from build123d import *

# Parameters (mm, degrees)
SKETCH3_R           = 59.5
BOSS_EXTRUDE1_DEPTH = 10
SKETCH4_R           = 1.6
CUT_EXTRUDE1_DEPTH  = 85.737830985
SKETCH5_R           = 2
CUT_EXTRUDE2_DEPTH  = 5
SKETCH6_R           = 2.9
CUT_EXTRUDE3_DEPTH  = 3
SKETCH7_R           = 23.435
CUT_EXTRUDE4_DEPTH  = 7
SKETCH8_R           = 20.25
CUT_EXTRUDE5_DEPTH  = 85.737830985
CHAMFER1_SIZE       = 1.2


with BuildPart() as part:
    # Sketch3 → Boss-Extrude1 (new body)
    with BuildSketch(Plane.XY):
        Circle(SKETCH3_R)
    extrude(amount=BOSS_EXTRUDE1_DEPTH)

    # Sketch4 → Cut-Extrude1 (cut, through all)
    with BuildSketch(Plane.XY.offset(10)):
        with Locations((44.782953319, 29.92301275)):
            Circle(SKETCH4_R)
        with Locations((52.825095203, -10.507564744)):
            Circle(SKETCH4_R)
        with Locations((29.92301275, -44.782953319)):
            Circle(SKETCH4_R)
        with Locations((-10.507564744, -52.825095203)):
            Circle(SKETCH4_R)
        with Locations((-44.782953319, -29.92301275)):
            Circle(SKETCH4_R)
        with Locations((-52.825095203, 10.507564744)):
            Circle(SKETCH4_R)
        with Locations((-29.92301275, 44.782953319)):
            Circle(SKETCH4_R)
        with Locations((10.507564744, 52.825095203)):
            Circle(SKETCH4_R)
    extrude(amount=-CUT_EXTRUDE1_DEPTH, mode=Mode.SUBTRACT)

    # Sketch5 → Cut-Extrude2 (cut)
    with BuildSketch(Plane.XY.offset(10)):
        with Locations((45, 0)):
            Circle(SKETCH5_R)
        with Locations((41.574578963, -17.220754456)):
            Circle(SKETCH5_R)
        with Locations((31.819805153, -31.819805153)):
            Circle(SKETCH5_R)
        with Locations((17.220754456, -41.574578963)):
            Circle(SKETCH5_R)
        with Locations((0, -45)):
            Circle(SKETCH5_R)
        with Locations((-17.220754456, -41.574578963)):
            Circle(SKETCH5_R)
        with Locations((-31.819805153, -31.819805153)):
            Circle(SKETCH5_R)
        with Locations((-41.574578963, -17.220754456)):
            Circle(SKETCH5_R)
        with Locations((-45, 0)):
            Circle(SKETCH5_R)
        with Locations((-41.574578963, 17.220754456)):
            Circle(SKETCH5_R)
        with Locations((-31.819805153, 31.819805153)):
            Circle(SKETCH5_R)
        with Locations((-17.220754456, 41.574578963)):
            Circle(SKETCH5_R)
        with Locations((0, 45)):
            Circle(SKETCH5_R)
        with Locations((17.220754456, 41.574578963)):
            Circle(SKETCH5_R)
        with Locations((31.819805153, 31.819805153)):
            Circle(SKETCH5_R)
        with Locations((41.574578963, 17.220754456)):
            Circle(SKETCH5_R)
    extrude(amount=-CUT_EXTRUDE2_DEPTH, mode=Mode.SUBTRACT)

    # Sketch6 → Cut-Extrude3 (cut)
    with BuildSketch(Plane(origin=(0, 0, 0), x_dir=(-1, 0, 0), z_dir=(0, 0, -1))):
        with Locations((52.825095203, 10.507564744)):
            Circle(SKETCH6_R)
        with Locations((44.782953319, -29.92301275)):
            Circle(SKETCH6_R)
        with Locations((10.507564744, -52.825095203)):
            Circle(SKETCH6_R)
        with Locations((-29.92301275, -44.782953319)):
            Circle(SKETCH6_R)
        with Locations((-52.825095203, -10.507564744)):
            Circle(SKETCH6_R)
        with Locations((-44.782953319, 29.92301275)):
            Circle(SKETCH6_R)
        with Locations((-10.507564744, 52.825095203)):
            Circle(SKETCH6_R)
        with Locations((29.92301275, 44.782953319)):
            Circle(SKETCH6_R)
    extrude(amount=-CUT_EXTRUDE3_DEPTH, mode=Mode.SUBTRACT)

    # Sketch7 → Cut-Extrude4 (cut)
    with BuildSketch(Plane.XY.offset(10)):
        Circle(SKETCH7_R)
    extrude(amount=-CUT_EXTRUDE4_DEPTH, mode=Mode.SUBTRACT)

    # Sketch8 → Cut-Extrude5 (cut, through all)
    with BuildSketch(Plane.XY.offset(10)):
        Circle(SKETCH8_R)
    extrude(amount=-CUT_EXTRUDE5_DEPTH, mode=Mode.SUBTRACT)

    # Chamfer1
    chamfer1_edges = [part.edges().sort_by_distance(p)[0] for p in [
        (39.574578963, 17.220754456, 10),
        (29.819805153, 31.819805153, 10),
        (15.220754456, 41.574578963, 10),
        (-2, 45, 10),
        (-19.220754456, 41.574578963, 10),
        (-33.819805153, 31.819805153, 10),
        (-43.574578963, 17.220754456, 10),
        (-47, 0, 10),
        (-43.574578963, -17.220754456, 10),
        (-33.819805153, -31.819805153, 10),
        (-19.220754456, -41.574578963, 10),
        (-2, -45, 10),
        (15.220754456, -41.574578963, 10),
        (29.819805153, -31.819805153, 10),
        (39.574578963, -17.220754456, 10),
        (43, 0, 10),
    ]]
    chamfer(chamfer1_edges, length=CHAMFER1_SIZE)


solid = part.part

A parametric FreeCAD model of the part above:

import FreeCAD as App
import Part
import Sketcher

V = App.Vector


def edges_at(feature, points):
    """Names of the edges that pass closest to the given points."""
    edges = feature.Shape.Edges
    near = lambda p: min(range(len(edges)), key=lambda i: edges[i].distToShape(Part.Vertex(*p))[0])
    return sorted({f"Edge{near(p) + 1}" for p in points})

doc = App.newDocument("Part")
params = doc.addObject("Spreadsheet::Sheet", "Params")
for row, (alias, value) in enumerate([
    ("sketch1_diameter", "119 mm"),
    ("pad1_length", "10 mm"),
    ("sketch2_diameter", "3.2 mm"),
    ("sketch3_diameter", "4 mm"),
    ("pocket2_length", "5 mm"),
    ("sketch4_diameter", "5.8 mm"),
    ("pocket3_length", "3 mm"),
    ("sketch5_diameter", "46.87 mm"),
    ("pocket4_length", "7 mm"),
    ("sketch6_diameter", "40.5 mm"),
    ("chamfer_size", "1.2 mm"),
], start=1):
    params.set(f"A{row}", alias)
    params.set(f"B{row}", "=" + value)
    params.setAlias(f"B{row}", alias)

body = doc.addObject("PartDesign::Body", "Body")

sketch1 = body.newObject("Sketcher::SketchObject", "Sketch")
sketch1.AttachmentSupport = (doc.getObject("XY_Plane"), [""])
sketch1.MapMode = "FlatFace"
sketch1.addGeometry(Part.Circle(V(0, 0, 0), V(0, 0, 1), 60), False)
sketch1.addConstraint(Sketcher.Constraint("Coincident", 0, 3, -1, 1))
sketch1.addConstraint(Sketcher.Constraint("Diameter", 0, 119.0))
sketch1.setExpression("Constraints[1]", "Params.sketch1_diameter")
pad1 = body.newObject("PartDesign::Pad", "Pad")
pad1.Profile = sketch1
pad1.setExpression("Length", "Params.pad1_length")

sketch2 = body.newObject("Sketcher::SketchObject", "Sketch001")
sketch2.AttachmentSupport = (doc.getObject("XY_Plane"), [""])
sketch2.MapMode = "FlatFace"
sketch2.AttachmentOffset = App.Placement(V(0, 0, 10), App.Rotation())
sketch2.addGeometry(Part.Circle(V(44.8, 29.9, 0), V(0, 0, 1), 1.6), False)
sketch2.addGeometry(Part.Circle(V(52.8, -10.5, 0), V(0, 0, 1), 1.6), False)
sketch2.addGeometry(Part.Circle(V(29.9, -44.8, 0), V(0, 0, 1), 1.6), False)
sketch2.addGeometry(Part.Circle(V(-10.5, -52.8, 0), V(0, 0, 1), 1.6), False)
sketch2.addGeometry(Part.Circle(V(-44.8, -29.9, 0), V(0, 0, 1), 1.6), False)
sketch2.addGeometry(Part.Circle(V(-52.8, 10.5, 0), V(0, 0, 1), 1.6), False)
sketch2.addGeometry(Part.Circle(V(-29.9, 44.8, 0), V(0, 0, 1), 1.6), False)
sketch2.addGeometry(Part.Circle(V(10.5, 52.8, 0), V(0, 0, 1), 1.6), False)
sketch2.addConstraint(Sketcher.Constraint("Equal", 0, 1))
sketch2.addConstraint(Sketcher.Constraint("Equal", 1, 2))
sketch2.addConstraint(Sketcher.Constraint("Equal", 2, 3))
sketch2.addConstraint(Sketcher.Constraint("Equal", 3, 4))
sketch2.addConstraint(Sketcher.Constraint("Equal", 4, 5))
sketch2.addConstraint(Sketcher.Constraint("Equal", 5, 6))
sketch2.addConstraint(Sketcher.Constraint("Equal", 6, 7))
sketch2.addConstraint(Sketcher.Constraint("Symmetric", 0, 3, 4, 3, -1, 1))
sketch2.addConstraint(Sketcher.Constraint("Symmetric", 1, 3, 5, 3, -1, 1))
sketch2.addConstraint(Sketcher.Constraint("Symmetric", 2, 3, 6, 3, -1, 1))
sketch2.addConstraint(Sketcher.Constraint("Symmetric", 3, 3, 7, 3, -1, 1))
sketch2.addConstraint(Sketcher.Constraint("Diameter", 0, 3.2))
sketch2.addConstraint(Sketcher.Constraint("DistanceX", 0, 3, 1, 3, 8.042142))
sketch2.addConstraint(Sketcher.Constraint("DistanceY", 2, 3, 1, 3, 34.275389))
sketch2.addConstraint(Sketcher.Constraint("DistanceX", 2, 3, 0, 3, 14.859941))
sketch2.addConstraint(Sketcher.Constraint("DistanceY", 3, 3, 2, 3, 8.042142))
sketch2.addConstraint(Sketcher.Constraint("DistanceX", 3, 3, 1, 3, 63.33266))
sketch2.addConstraint(Sketcher.Constraint("DistanceX", 4, 3, 3, 3, 34.275389))
sketch2.addConstraint(Sketcher.Constraint("DistanceY", 2, 3, 4, 3, 14.859941))
sketch2.addConstraint(Sketcher.Constraint("DistanceY", 3, 3, 5, 3, 63.33266))
sketch2.setExpression("Constraints[11]", "Params.sketch2_diameter")
pocket1 = body.newObject("PartDesign::Pocket", "Pocket")
pocket1.Profile = sketch2
pocket1.Type = "ThroughAll"

sketch3 = body.newObject("Sketcher::SketchObject", "Sketch002")
sketch3.AttachmentSupport = (doc.getObject("XY_Plane"), [""])
sketch3.MapMode = "FlatFace"
sketch3.AttachmentOffset = App.Placement(V(0, 0, 10), App.Rotation())
sketch3.addGeometry(Part.Circle(V(45, 0, 0), V(0, 0, 1), 2), False)
sketch3.addGeometry(Part.Circle(V(41.6, -17.2, 0), V(0, 0, 1), 2), False)
sketch3.addGeometry(Part.Circle(V(31.8, -31.8, 0), V(0, 0, 1), 2), False)
sketch3.addGeometry(Part.Circle(V(17.2, -41.6, 0), V(0, 0, 1), 2), False)
sketch3.addGeometry(Part.Circle(V(0, -45, 0), V(0, 0, 1), 2), False)
sketch3.addGeometry(Part.Circle(V(-17.2, -41.6, 0), V(0, 0, 1), 2), False)
sketch3.addGeometry(Part.Circle(V(-31.8, -31.8, 0), V(0, 0, 1), 2), False)
sketch3.addGeometry(Part.Circle(V(-41.6, -17.2, 0), V(0, 0, 1), 2), False)
sketch3.addGeometry(Part.Circle(V(-45, 0, 0), V(0, 0, 1), 2), False)
sketch3.addGeometry(Part.Circle(V(-41.6, 17.2, 0), V(0, 0, 1), 2), False)
sketch3.addGeometry(Part.Circle(V(-31.8, 31.8, 0), V(0, 0, 1), 2), False)
sketch3.addGeometry(Part.Circle(V(-17.2, 41.6, 0), V(0, 0, 1), 2), False)
sketch3.addGeometry(Part.Circle(V(0, 45, 0), V(0, 0, 1), 2), False)
sketch3.addGeometry(Part.Circle(V(17.2, 41.6, 0), V(0, 0, 1), 2), False)
sketch3.addGeometry(Part.Circle(V(31.8, 31.8, 0), V(0, 0, 1), 2), False)
sketch3.addGeometry(Part.Circle(V(41.6, 17.2, 0), V(0, 0, 1), 2), False)
sketch3.addConstraint(Sketcher.Constraint("Equal", 0, 1))
sketch3.addConstraint(Sketcher.Constraint("Equal", 1, 2))
sketch3.addConstraint(Sketcher.Constraint("Equal", 2, 3))
sketch3.addConstraint(Sketcher.Constraint("Equal", 3, 4))
sketch3.addConstraint(Sketcher.Constraint("Equal", 4, 5))
sketch3.addConstraint(Sketcher.Constraint("Equal", 5, 6))
sketch3.addConstraint(Sketcher.Constraint("Equal", 6, 7))
sketch3.addConstraint(Sketcher.Constraint("Equal", 7, 8))
sketch3.addConstraint(Sketcher.Constraint("Equal", 8, 9))
sketch3.addConstraint(Sketcher.Constraint("Equal", 9, 10))
sketch3.addConstraint(Sketcher.Constraint("Equal", 10, 11))
sketch3.addConstraint(Sketcher.Constraint("Equal", 11, 12))
sketch3.addConstraint(Sketcher.Constraint("Equal", 12, 13))
sketch3.addConstraint(Sketcher.Constraint("Equal", 13, 14))
sketch3.addConstraint(Sketcher.Constraint("Equal", 14, 15))
sketch3.addConstraint(Sketcher.Constraint("Symmetric", 0, 3, 8, 3, -1, 1))
sketch3.addConstraint(Sketcher.Constraint("Symmetric", 1, 3, 9, 3, -1, 1))
sketch3.addConstraint(Sketcher.Constraint("Symmetric", 2, 3, 10, 3, -1, 1))
sketch3.addConstraint(Sketcher.Constraint("Symmetric", 3, 3, 11, 3, -1, 1))
sketch3.addConstraint(Sketcher.Constraint("Symmetric", 4, 3, 12, 3, -1, 1))
sketch3.addConstraint(Sketcher.Constraint("Symmetric", 5, 3, 13, 3, -1, 1))
sketch3.addConstraint(Sketcher.Constraint("Symmetric", 6, 3, 14, 3, -1, 1))
sketch3.addConstraint(Sketcher.Constraint("Symmetric", 7, 3, 15, 3, -1, 1))
sketch3.addConstraint(Sketcher.Constraint("Symmetric", 3, 3, 5, 3, -2))
sketch3.addConstraint(Sketcher.Constraint("Symmetric", 2, 3, 6, 3, -2))
sketch3.addConstraint(Sketcher.Constraint("Symmetric", 1, 3, 7, 3, -2))
sketch3.addConstraint(Sketcher.Constraint("PointOnObject", 0, 3, -1))
sketch3.addConstraint(Sketcher.Constraint("PointOnObject", 4, 3, -2))
sketch3.addConstraint(Sketcher.Constraint("Diameter", 0, 4.0))
sketch3.addConstraint(Sketcher.Constraint("DistanceX", -1, 1, 0, 3, 45.0))
sketch3.addConstraint(Sketcher.Constraint("DistanceY", 4, 3, -1, 1, 45.0))
sketch3.addConstraint(Sketcher.Constraint("DistanceX", -1, 1, 1, 3, 41.574579))
sketch3.addConstraint(Sketcher.Constraint("DistanceY", 3, 3, -1, 1, 41.574579))
sketch3.addConstraint(Sketcher.Constraint("DistanceY", 2, 3, 1, 3, 14.599051))
sketch3.addConstraint(Sketcher.Constraint("DistanceX", 3, 3, 2, 3, 14.599051))
sketch3.addConstraint(Sketcher.Constraint("DistanceX", 5, 3, 3, 3, 34.441509))
sketch3.addConstraint(Sketcher.Constraint("DistanceY", 7, 3, 9, 3, 34.441509))
sketch3.setExpression("Constraints[28]", "Params.sketch3_diameter")
pocket2 = body.newObject("PartDesign::Pocket", "Pocket001")
pocket2.Profile = sketch3
pocket2.setExpression("Length", "Params.pocket2_length")

sketch4 = body.newObject("Sketcher::SketchObject", "Sketch003")
sketch4.AttachmentSupport = (doc.getObject("XY_Plane"), [""])
sketch4.MapMode = "FlatFace"
sketch4.addGeometry(Part.Circle(V(-52.8, 10.5, 0), V(0, 0, 1), 2.9), False)
sketch4.addGeometry(Part.Circle(V(-44.8, -29.9, 0), V(0, 0, 1), 2.9), False)
sketch4.addGeometry(Part.Circle(V(-10.5, -52.8, 0), V(0, 0, 1), 2.9), False)
sketch4.addGeometry(Part.Circle(V(29.9, -44.8, 0), V(0, 0, 1), 2.9), False)
sketch4.addGeometry(Part.Circle(V(52.8, -10.5, 0), V(0, 0, 1), 2.9), False)
sketch4.addGeometry(Part.Circle(V(44.8, 29.9, 0), V(0, 0, 1), 2.9), False)
sketch4.addGeometry(Part.Circle(V(10.5, 52.8, 0), V(0, 0, 1), 2.9), False)
sketch4.addGeometry(Part.Circle(V(-29.9, 44.8, 0), V(0, 0, 1), 2.9), False)
sketch4.addConstraint(Sketcher.Constraint("Equal", 0, 1))
sketch4.addConstraint(Sketcher.Constraint("Equal", 1, 2))
sketch4.addConstraint(Sketcher.Constraint("Equal", 2, 3))
sketch4.addConstraint(Sketcher.Constraint("Equal", 3, 4))
sketch4.addConstraint(Sketcher.Constraint("Equal", 4, 5))
sketch4.addConstraint(Sketcher.Constraint("Equal", 5, 6))
sketch4.addConstraint(Sketcher.Constraint("Equal", 6, 7))
sketch4.addConstraint(Sketcher.Constraint("Symmetric", 0, 3, 4, 3, -1, 1))
sketch4.addConstraint(Sketcher.Constraint("Symmetric", 1, 3, 5, 3, -1, 1))
sketch4.addConstraint(Sketcher.Constraint("Symmetric", 2, 3, 6, 3, -1, 1))
sketch4.addConstraint(Sketcher.Constraint("Symmetric", 3, 3, 7, 3, -1, 1))
sketch4.addConstraint(Sketcher.Constraint("Diameter", 0, 5.8))
sketch4.addConstraint(Sketcher.Constraint("DistanceX", 0, 3, 1, 3, 8.042142))
sketch4.addConstraint(Sketcher.Constraint("DistanceX", 1, 3, 2, 3, 34.275389))
sketch4.addConstraint(Sketcher.Constraint("DistanceY", 2, 3, 0, 3, 63.33266))
sketch4.addConstraint(Sketcher.Constraint("DistanceY", 2, 3, 3, 3, 8.042142))
sketch4.addConstraint(Sketcher.Constraint("DistanceY", 3, 3, 1, 3, 14.859941))
sketch4.addConstraint(Sketcher.Constraint("DistanceY", 3, 3, 4, 3, 34.275389))
sketch4.addConstraint(Sketcher.Constraint("DistanceX", 2, 3, 4, 3, 63.33266))
sketch4.addConstraint(Sketcher.Constraint("DistanceX", 3, 3, 5, 3, 14.859941))
sketch4.setExpression("Constraints[11]", "Params.sketch4_diameter")
pocket3 = body.newObject("PartDesign::Pocket", "Pocket002")
pocket3.Profile = sketch4
pocket3.setExpression("Length", "Params.pocket3_length")
pocket3.Reversed = True

sketch5 = body.newObject("Sketcher::SketchObject", "Sketch004")
sketch5.AttachmentSupport = (doc.getObject("XY_Plane"), [""])
sketch5.MapMode = "FlatFace"
sketch5.AttachmentOffset = App.Placement(V(0, 0, 10), App.Rotation())
sketch5.addGeometry(Part.Circle(V(0, 0, 0), V(0, 0, 1), 23), False)
sketch5.addConstraint(Sketcher.Constraint("Coincident", 0, 3, -1, 1))
sketch5.addConstraint(Sketcher.Constraint("Diameter", 0, 46.87))
sketch5.setExpression("Constraints[1]", "Params.sketch5_diameter")
pocket4 = body.newObject("PartDesign::Pocket", "Pocket003")
pocket4.Profile = sketch5
pocket4.setExpression("Length", "Params.pocket4_length")

sketch6 = body.newObject("Sketcher::SketchObject", "Sketch005")
sketch6.AttachmentSupport = (doc.getObject("XY_Plane"), [""])
sketch6.MapMode = "FlatFace"
sketch6.AttachmentOffset = App.Placement(V(0, 0, 10), App.Rotation())
sketch6.addGeometry(Part.Circle(V(0, 0, 0), V(0, 0, 1), 20), False)
sketch6.addConstraint(Sketcher.Constraint("Coincident", 0, 3, -1, 1))
sketch6.addConstraint(Sketcher.Constraint("Diameter", 0, 40.5))
sketch6.setExpression("Constraints[1]", "Params.sketch6_diameter")
pocket5 = body.newObject("PartDesign::Pocket", "Pocket004")
pocket5.Profile = sketch6
pocket5.Type = "ThroughAll"
doc.recompute()

chamfer = body.newObject("PartDesign::Chamfer", "Chamfer")
chamfer.Base = (pocket5, edges_at(pocket5, [
    (39.575, 17.221, 10),
    (29.82, 31.82, 10),
    (15.221, 41.575, 10),
    (-2, 45, 10),
    (-19.221, 41.575, 10),
    (-33.82, 31.82, 10),
    (-43.575, 17.221, 10),
    (-47, 0, 10),
    (-43.575, -17.221, 10),
    (-33.82, -31.82, 10),
    (-19.221, -41.575, 10),
    (-2, -45, 10),
    (15.221, -41.575, 10),
    (29.82, -31.82, 10),
    (39.575, -17.221, 10),
    (43, 0, 10),
]))
chamfer.setExpression("Size", "Params.chamfer_size")

doc.recompute()
